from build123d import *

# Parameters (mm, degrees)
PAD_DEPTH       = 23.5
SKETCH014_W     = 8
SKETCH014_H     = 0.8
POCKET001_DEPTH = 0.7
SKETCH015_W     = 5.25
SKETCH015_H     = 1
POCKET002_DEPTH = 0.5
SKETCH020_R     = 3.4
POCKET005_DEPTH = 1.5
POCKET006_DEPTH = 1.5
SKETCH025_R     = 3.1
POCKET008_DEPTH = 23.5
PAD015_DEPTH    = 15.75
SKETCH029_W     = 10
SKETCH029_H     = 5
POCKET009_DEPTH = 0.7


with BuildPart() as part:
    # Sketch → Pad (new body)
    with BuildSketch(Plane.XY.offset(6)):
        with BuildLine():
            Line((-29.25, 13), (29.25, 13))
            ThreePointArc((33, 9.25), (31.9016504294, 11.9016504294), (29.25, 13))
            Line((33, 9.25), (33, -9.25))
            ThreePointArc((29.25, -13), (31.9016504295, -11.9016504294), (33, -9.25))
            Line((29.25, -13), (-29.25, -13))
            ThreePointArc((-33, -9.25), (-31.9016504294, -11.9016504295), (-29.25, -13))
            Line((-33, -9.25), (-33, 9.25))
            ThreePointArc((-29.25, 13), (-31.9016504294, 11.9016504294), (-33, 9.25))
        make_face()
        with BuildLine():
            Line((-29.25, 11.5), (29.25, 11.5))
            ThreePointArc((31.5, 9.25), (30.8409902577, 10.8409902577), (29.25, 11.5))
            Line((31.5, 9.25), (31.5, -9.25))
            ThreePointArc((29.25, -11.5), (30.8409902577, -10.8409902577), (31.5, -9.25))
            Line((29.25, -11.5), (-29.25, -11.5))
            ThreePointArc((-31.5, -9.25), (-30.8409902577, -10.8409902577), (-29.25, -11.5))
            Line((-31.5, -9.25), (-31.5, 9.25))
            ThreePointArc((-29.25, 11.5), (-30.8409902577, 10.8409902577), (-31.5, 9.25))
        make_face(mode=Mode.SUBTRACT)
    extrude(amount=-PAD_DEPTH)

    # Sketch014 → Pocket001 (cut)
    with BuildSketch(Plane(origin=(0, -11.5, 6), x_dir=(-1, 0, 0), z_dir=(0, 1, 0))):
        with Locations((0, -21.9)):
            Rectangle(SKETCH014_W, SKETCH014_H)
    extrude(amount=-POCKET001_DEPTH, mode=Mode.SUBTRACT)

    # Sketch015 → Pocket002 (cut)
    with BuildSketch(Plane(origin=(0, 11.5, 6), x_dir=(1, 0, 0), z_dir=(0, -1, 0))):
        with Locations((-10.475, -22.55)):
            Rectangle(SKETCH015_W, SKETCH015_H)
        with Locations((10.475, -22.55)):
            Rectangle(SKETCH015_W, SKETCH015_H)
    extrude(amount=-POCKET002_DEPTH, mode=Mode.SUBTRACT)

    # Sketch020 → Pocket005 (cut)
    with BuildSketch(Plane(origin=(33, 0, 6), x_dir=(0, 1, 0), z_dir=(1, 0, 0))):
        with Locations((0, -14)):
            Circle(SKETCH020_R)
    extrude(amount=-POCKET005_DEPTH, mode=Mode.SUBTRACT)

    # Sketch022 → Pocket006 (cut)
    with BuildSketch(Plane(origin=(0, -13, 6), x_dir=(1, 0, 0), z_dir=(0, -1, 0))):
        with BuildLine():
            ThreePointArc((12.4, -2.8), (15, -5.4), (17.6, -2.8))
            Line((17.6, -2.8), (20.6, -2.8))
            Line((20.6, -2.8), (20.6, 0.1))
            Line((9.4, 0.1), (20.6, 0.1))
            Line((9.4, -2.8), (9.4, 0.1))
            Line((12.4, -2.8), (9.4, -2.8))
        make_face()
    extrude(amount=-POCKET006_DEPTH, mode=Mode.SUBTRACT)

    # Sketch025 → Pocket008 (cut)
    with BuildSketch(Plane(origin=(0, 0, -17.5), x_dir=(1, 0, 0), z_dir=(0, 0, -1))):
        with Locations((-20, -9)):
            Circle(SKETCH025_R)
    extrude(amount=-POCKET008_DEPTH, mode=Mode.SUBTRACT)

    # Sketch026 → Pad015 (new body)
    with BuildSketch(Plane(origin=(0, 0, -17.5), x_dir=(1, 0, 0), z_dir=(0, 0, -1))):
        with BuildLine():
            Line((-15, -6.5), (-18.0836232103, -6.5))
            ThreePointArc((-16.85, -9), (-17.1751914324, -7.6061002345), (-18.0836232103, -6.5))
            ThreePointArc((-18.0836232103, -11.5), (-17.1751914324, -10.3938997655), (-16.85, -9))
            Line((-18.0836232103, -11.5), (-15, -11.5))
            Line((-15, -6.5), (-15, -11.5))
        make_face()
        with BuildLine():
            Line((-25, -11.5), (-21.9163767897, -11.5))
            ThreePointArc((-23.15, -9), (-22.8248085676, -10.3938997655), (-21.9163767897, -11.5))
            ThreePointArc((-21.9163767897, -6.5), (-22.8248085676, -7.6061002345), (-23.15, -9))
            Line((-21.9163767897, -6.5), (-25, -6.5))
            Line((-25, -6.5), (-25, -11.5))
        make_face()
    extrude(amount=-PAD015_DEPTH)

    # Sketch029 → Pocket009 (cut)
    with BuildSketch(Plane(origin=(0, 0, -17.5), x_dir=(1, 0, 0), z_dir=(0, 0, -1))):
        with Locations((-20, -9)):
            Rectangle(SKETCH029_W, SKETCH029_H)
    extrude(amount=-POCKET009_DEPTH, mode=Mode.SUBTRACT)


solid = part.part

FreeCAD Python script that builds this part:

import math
import FreeCAD as App
import Part
import Sketcher
from FreeCAD import Vector


def add_polygon(sketch, points):
    """Adds a closed chain of lines whose ends are joined by coincident constraints."""
    first, n = sketch.GeometryCount, len(points)
    for a, b in zip(points, points[1:] + points[:1]):
        sketch.addGeometry(Part.LineSegment(App.Vector(*a, 0), App.Vector(*b, 0)), False)
    for i in range(n):
        sketch.addConstraint(Sketcher.Constraint("Coincident", first + i, 2, first + (i + 1) % n, 1))

doc = App.newDocument("Part")
params = doc.addObject("Spreadsheet::Sheet", "Params")
for row, (alias, value) in enumerate([
    ("sketch1_radius", "3.75 mm"),
    ("sketch1_radius2", "2.25 mm"),
    ("sketch1_width", "58.5 mm"),
    ("sketch1_height", "18.5 mm"),
    ("pad1_length", "23.5 mm"),
    ("sketch2_width", "8 mm"),
    ("sketch2_height", "0.8 mm"),
    ("pocket1_length", "0.7 mm"),
    ("sketch3_height", "1 mm"),
    ("sketch3_width", "5.25 mm"),
    ("pocket2_length", "0.5 mm"),
    ("sketch4_diameter", "6.8 mm"),
    ("pocket3_length", "1.5 mm"),
    ("sketch5_radius", "2.6 mm"),
    ("sketch5_width", "3 mm"),
    ("sketch5_height", "2.9 mm"),
    ("pocket4_length", "1.5 mm"),
    ("sketch6_diameter", "6.2 mm"),
    ("pocket5_length", "23.5 mm"),
    ("sketch7_height", "5 mm"),
    ("sketch7_radius", "3.15 mm"),
    ("pad2_length", "15.75 mm"),
    ("sketch8_width", "10 mm"),
    ("sketch8_height", "5 mm"),
    ("pocket6_length", "0.7 mm"),
], start=1):
    params.set(f"A{row}", alias)
    params.set(f"B{row}", "=" + value)
    params.setAlias(f"B{row}", alias)

body = doc.addObject("PartDesign::Body", "Body")

# Sketch on XY plane
sketch1 = doc.addObject("Sketcher::SketchObject", "Sketch")
body.addObject(sketch1)
sketch1.AttachmentSupport = (doc.XY_Plane, [""])
sketch1.MapMode = "FlatFace"
sketch1.AttachmentOffset = App.Placement(Vector(0, 0, 6), App.Rotation())
sketch1.addGeometry(Part.LineSegment(Vector(29.2, 13, 0), Vector(-29.2, 13, 0)), False)
sketch1.addGeometry(Part.ArcOfCircle(Part.Circle(Vector(-29.2, 9.2, 0), Vector(0, 0, 1), 3.8), math.radians(90), math.radians(180)), False)
sketch1.addGeometry(Part.LineSegment(Vector(-33, 9.2, 0), Vector(-33, -9.2, 0)), False)
sketch1.addGeometry(Part.ArcOfCircle(Part.Circle(Vector(-29.2, -9.2, 0), Vector(0, 0, 1), 3.8), math.radians(180), math.radians(270)), False)
sketch1.addGeometry(Part.LineSegment(Vector(-29.2, -13, 0), Vector(29.2, -13, 0)), False)
sketch1.addGeometry(Part.ArcOfCircle(Part.Circle(Vector(29.2, -9.2, 0), Vector(0, 0, 1), 3.8), math.radians(-90), math.radians(0)), False)
sketch1.addGeometry(Part.LineSegment(Vector(33, -9.2, 0), Vector(33, 9.2, 0)), False)
sketch1.addGeometry(Part.ArcOfCircle(Part.Circle(Vector(29.2, 9.2, 0), Vector(0, 0, 1), 3.8), math.radians(0), math.radians(90)), False)
sketch1.addGeometry(Part.LineSegment(Vector(-29.2, 11.5, 0), Vector(29.2, 11.5, 0)), False)
sketch1.addGeometry(Part.ArcOfCircle(Part.Circle(Vector(29.2, 9.2, 0), Vector(0, 0, 1), 2.2), math.radians(0), math.radians(90)), False)
sketch1.addGeometry(Part.LineSegment(Vector(31.5, 9.2, 0), Vector(31.5, -9.2, 0)), False)
sketch1.addGeometry(Part.ArcOfCircle(Part.Circle(Vector(29.2, -9.2, 0), Vector(0, 0, 1), 2.2), math.radians(-90), math.radians(0)), False)
sketch1.addGeometry(Part.LineSegment(Vector(29.2, -11.5, 0), Vector(-29.2, -11.5, 0)), False)
sketch1.addGeometry(Part.ArcOfCircle(Part.Circle(Vector(-29.2, -9.2, 0), Vector(0, 0, 1), 2.2), math.radians(180), math.radians(270)), False)
sketch1.addGeometry(Part.LineSegment(Vector(-31.5, -9.2, 0), Vector(-31.5, 9.2, 0)), False)
sketch1.addGeometry(Part.ArcOfCircle(Part.Circle(Vector(-29.2, 9.2, 0), Vector(0, 0, 1), 2.2), math.radians(90), math.radians(180)), False)
sketch1.addConstraint(Sketcher.Constraint("Tangent", 0, 2, 1, 1))
sketch1.addConstraint(Sketcher.Constraint("Tangent", 1, 2, 2, 1))
sketch1.addConstraint(Sketcher.Constraint("Tangent", 2, 2, 3, 1))
sketch1.addConstraint(Sketcher.Constraint("Tangent", 3, 2, 4, 1))
sketch1.addConstraint(Sketcher.Constraint("Tangent", 4, 2, 5, 1))
sketch1.addConstraint(Sketcher.Constraint("Tangent", 5, 2, 6, 1))
sketch1.addConstraint(Sketcher.Constraint("Tangent", 6, 2, 7, 1))
sketch1.addConstraint(Sketcher.Constraint("Tangent", 7, 2, 0, 1))
sketch1.addConstraint(Sketcher.Constraint("Tangent", 8, 2, 9, 2))
sketch1.addConstraint(Sketcher.Constraint("Tangent", 9, 1, 10, 1))
sketch1.addConstraint(Sketcher.Constraint("Tangent", 10, 2, 11, 2))
sketch1.addConstraint(Sketcher.Constraint("Tangent", 11, 1, 12, 1))
sketch1.addConstraint(Sketcher.Constraint("Tangent", 12, 2, 13, 2))
sketch1.addConstraint(Sketcher.Constraint("Tangent", 13, 1, 14, 1))
sketch1.addConstraint(Sketcher.Constraint("Tangent", 14, 2, 15, 2))
sketch1.addConstraint(Sketcher.Constraint("Tangent", 15, 1, 8, 1))
sketch1.addConstraint(Sketcher.Constraint("Horizontal", 0))
sketch1.addConstraint(Sketcher.Constraint("Vertical", 2))
sketch1.addConstraint(Sketcher.Constraint("Horizontal", 4))
sketch1.addConstraint(Sketcher.Constraint("Vertical", 6))
sketch1.addConstraint(Sketcher.Constraint("Horizontal", 8))
sketch1.addConstraint(Sketcher.Constraint("Vertical", 10))
sketch1.addConstraint(Sketcher.Constraint("Horizontal", 12))
sketch1.addConstraint(Sketcher.Constraint("Vertical", 14))
sketch1.addConstraint(Sketcher.Constraint("Coincident", 9, 3, 7, 3))
sketch1.addConstraint(Sketcher.Constraint("Coincident", 11, 3, 5, 3))
sketch1.addConstraint(Sketcher.Constraint("Coincident", 13, 3, 3, 3))
sketch1.addConstraint(Sketcher.Constraint("Equal", 1, 3))
sketch1.addConstraint(Sketcher.Constraint("Equal", 3, 5))
sketch1.addConstraint(Sketcher.Constraint("Equal", 5, 7))
sketch1.addConstraint(Sketcher.Constraint("Equal", 13, 15))
sketch1.addConstraint(Sketcher.Constraint("Symmetric", 1, 3, 5, 3, -1, 1))
sketch1.addConstraint(Sketcher.Constraint("Radius", 1, 3.75))
sketch1.addConstraint(Sketcher.Constraint("Radius", 9, 2.25))
sketch1.addConstraint(Sketcher.Constraint("DistanceX", 0, 2, 0, 1, 58.5))
sketch1.addConstraint(Sketcher.Constraint("DistanceY", 2, 2, 2, 1, 18.5))
sketch1.setExpression("Constraints[32]", "Params.sketch1_radius")
sketch1.setExpression("Constraints[33]", "Params.sketch1_radius2")
sketch1.setExpression("Constraints[34]", "Params.sketch1_width")
sketch1.setExpression("Constraints[35]", "Params.sketch1_height")
pad1 = doc.addObject("PartDesign::Pad", "Pad")
body.addObject(pad1)
pad1.Profile = sketch1
pad1.setExpression("Length", "Params.pad1_length")
pad1.Reversed = True

# Sketch on XZ plane
sketch2 = doc.addObject("Sketcher::SketchObject", "Sketch001")
body.addObject(sketch2)
sketch2.AttachmentSupport = (doc.XZ_Plane, [""])
sketch2.MapMode = "FlatFace"
sketch2.AttachmentOffset = App.Placement(Vector(0, 0, 11.5), App.Rotation())
add_polygon(sketch2, [(4, -15.5), (4, -16.3), (-4, -16.3), (-4, -15.5)])  # lines 0-3
sketch2.addConstraint(Sketcher.Constraint("Vertical", 0))
sketch2.addConstraint(Sketcher.Constraint("Horizontal", 1))
sketch2.addConstraint(Sketcher.Constraint("Vertical", 2))
sketch2.addConstraint(Sketcher.Constraint("Horizontal", 3))
sketch2.addConstraint(Sketcher.Constraint("DistanceX", 1, 2, 1, 1, 8.0))
sketch2.addConstraint(Sketcher.Constraint("DistanceY", 0, 2, 0, 1, 0.8))
sketch2.addConstraint(Sketcher.Constraint("DistanceX", -1, 1, 0, 2, 4.0))
sketch2.addConstraint(Sketcher.Constraint("DistanceY", 0, 2, -1, 1, 16.3))
sketch2.setExpression("Constraints[8]", "Params.sketch2_width")
sketch2.setExpression("Constraints[9]", "Params.sketch2_height")
pocket1 = doc.addObject("PartDesign::Pocket", "Pocket")
body.addObject(pocket1)
pocket1.Profile = sketch2
pocket1.setExpression("Length", "Params.pocket1_length")
pocket1.Reversed = True

# Sketch on XZ plane
sketch3 = doc.addObject("Sketcher::SketchObject", "Sketch002")
body.addObject(sketch3)
sketch3.AttachmentSupport = (doc.XZ_Plane, [""])
sketch3.MapMode = "FlatFace"
sketch3.AttachmentOffset = App.Placement(Vector(0, 0, -11.5), App.Rotation())
add_polygon(sketch3, [(-13.1, -16.1), (-13.1, -17.1), (-7.8, -17.1), (-7.8, -16.1)])  # lines 0-3
add_polygon(sketch3, [(7.8, -16.1), (7.8, -17.1), (13.1, -17.1), (13.1, -16.1)])  # lines 4-7
sketch3.addConstraint(Sketcher.Constraint("Vertical", 0))
sketch3.addConstraint(Sketcher.Constraint("Horizontal", 1))
sketch3.addConstraint(Sketcher.Constraint("Vertical", 2))
sketch3.addConstraint(Sketcher.Constraint("Horizontal", 3))
sketch3.addConstraint(Sketcher.Constraint("Vertical", 4))
sketch3.addConstraint(Sketcher.Constraint("Horizontal", 5))
sketch3.addConstraint(Sketcher.Constraint("Vertical", 6))
sketch3.addConstraint(Sketcher.Constraint("Horizontal", 7))
sketch3.addConstraint(Sketcher.Constraint("Symmetric", 1, 2, 4, 2, -2))
sketch3.addConstraint(Sketcher.Constraint("Symmetric", 3, 2, 6, 2, -2))
sketch3.addConstraint(Sketcher.Constraint("DistanceY", 0, 2, 0, 1, 1.0))
sketch3.addConstraint(Sketcher.Constraint("DistanceX", 1, 1, 1, 2, 5.25))
sketch3.addConstraint(Sketcher.Constraint("DistanceX", 0, 2, -1, 1, 13.1))
sketch3.addConstraint(Sketcher.Constraint("DistanceY", 0, 2, -1, 1, 17.05))
sketch3.setExpression("Constraints[18]", "Params.sketch3_height")
sketch3.setExpression("Constraints[19]", "Params.sketch3_width")
pocket2 = doc.addObject("PartDesign::Pocket", "Pocket001")
body.addObject(pocket2)
pocket2.Profile = sketch3
pocket2.setExpression("Length", "Params.pocket2_length")

# Sketch on YZ plane
sketch4 = doc.addObject("Sketcher::SketchObject", "Sketch003")
body.addObject(sketch4)
sketch4.AttachmentSupport = (doc.YZ_Plane, [""])
sketch4.MapMode = "FlatFace"
sketch4.AttachmentOffset = App.Placement(Vector(0, 0, 33), App.Rotation())
sketch4.addGeometry(Part.Circle(Vector(0, -8, 0), Vector(0, 0, 1), 3.4), False)
sketch4.addConstraint(Sketcher.Constraint("PointOnObject", 0, 3, -2))
sketch4.addConstraint(Sketcher.Constraint("Diameter", 0, 6.8))
sketch4.addConstraint(Sketcher.Constraint("DistanceY", 0, 3, -1, 1, 8.0))
sketch4.setExpression("Constraints[1]", "Params.sketch4_diameter")
pocket3 = doc.addObject("PartDesign::Pocket", "Pocket002")
body.addObject(pocket3)
pocket3.Profile = sketch4
pocket3.setExpression("Length", "Params.pocket3_length")

# Sketch on XZ plane
sketch5 = doc.addObject("Sketcher::SketchObject", "Sketch004")
body.addObject(sketch5)
sketch5.AttachmentSupport = (doc.XZ_Plane, [""])
sketch5.MapMode = "FlatFace"
sketch5.AttachmentOffset = App.Placement(Vector(0, 0, 13), App.Rotation())
sketch5.addGeometry(Part.ArcOfCircle(Part.Circle(Vector(15, 3.2, 0), Vector(0, 0, 1), 2.6), math.radians(180), math.radians(360)), False)
sketch5.addGeometry(Part.LineSegment(Vector(17.6, 3.2, 0), Vector(20.6, 3.2, 0)), False)
sketch5.addGeometry(Part.LineSegment(Vector(20.6, 3.2, 0), Vector(20.6, 6.1, 0)), False)
sketch5.addGeometry(Part.LineSegment(Vector(20.6, 6.1, 0), Vector(9.4, 6.1, 0)), False)
sketch5.addGeometry(Part.LineSegment(Vector(9.4, 6.1, 0), Vector(9.4, 3.2, 0)), False)
sketch5.addGeometry(Part.LineSegment(Vector(9.4, 3.2, 0), Vector(12.4, 3.2, 0)), False)
sketch5.addConstraint(Sketcher.Constraint("Coincident", 0, 2, 1, 1))
sketch5.addConstraint(Sketcher.Constraint("Coincident", 1, 2, 2, 1))
sketch5.addConstraint(Sketcher.Constraint("Coincident", 2, 2, 3, 1))
sketch5.addConstraint(Sketcher.Constraint("Coincident", 3, 2, 4, 1))
sketch5.addConstraint(Sketcher.Constraint("Coincident", 4, 2, 5, 1))
sketch5.addConstraint(Sketcher.Constraint("Coincident", 5, 2, 0, 1))
sketch5.addConstraint(Sketcher.Constraint("Horizontal", 1))
sketch5.addConstraint(Sketcher.Constraint("Vertical", 2))
sketch5.addConstraint(Sketcher.Constraint("Horizontal", 3))
sketch5.addConstraint(Sketcher.Constraint("Vertical", 4))
sketch5.addConstraint(Sketcher.Constraint("Horizontal", 5))
sketch5.addConstraint(Sketcher.Constraint("Horizontal", 1, 2, 4, 2))
sketch5.addConstraint(Sketcher.Constraint("Equal", 1, 5))
sketch5.addConstraint(Sketcher.Constraint("Radius", 0, 2.6))
sketch5.addConstraint(Sketcher.Constraint("DistanceX", 1, 1, 1, 2, 3.0))
sketch5.addConstraint(Sketcher.Constraint("DistanceY", 2, 1, 2, 2, 2.9))
sketch5.addConstraint(Sketcher.Constraint("DistanceX", -1, 1, 0, 3, 15.0))
sketch5.addConstraint(Sketcher.Constraint("DistanceY", -1, 1, 0, 3, 3.2))
sketch5.addConstraint(Sketcher.Constraint("DistanceY", -1, 1, 0, 2, 3.2))
sketch5.setExpression("Constraints[13]", "Params.sketch5_radius")
sketch5.setExpression("Constraints[14]", "Params.sketch5_width")
sketch5.setExpression("Constraints[15]", "Params.sketch5_height")
pocket4 = doc.addObject("PartDesign::Pocket", "Pocket003")
body.addObject(pocket4)
pocket4.Profile = sketch5
pocket4.setExpression("Length", "Params.pocket4_length")

# Sketch on XY plane
sketch6 = doc.addObject("Sketcher::SketchObject", "Sketch005")
body.addObject(sketch6)
sketch6.AttachmentSupport = (doc.XY_Plane, [""])
sketch6.MapMode = "FlatFace"
sketch6.AttachmentOffset = App.Placement(Vector(0, 0, -17.5), App.Rotation())
sketch6.addGeometry(Part.Circle(Vector(-20, 9, 0), Vector(0, 0, 1), 3.1), False)
sketch6.addConstraint(Sketcher.Constraint("Diameter", 0, 6.2))
sketch6.addConstraint(Sketcher.Constraint("DistanceX", 0, 3, -1, 1, 20.0))
sketch6.addConstraint(Sketcher.Constraint("DistanceY", -1, 1, 0, 3, 9.0))
sketch6.setExpression("Constraints[0]", "Params.sketch6_diameter")
pocket5 = doc.addObject("PartDesign::Pocket", "Pocket004")
body.addObject(pocket5)
pocket5.Profile = sketch6
pocket5.setExpression("Length", "Params.pocket5_length")
pocket5.Reversed = True

# Sketch on XY plane
sketch7 = doc.addObject("Sketcher::SketchObject", "Sketch006")
body.addObject(sketch7)
sketch7.AttachmentSupport = (doc.XY_Plane, [""])
sketch7.MapMode = "FlatFace"
sketch7.AttachmentOffset = App.Placement(Vector(0, 0, -17.5), App.Rotation())
sketch7.addGeometry(Part.LineSegment(Vector(-15, 6.5, 0), Vector(-18.1, 6.5, 0)), False)
sketch7.addGeometry(Part.ArcOfCircle(Part.Circle(Vector(-20, 9, 0), Vector(0, 0, 1), 3.1), math.radians(-53), math.radians(0)), False)
sketch7.addGeometry(Part.ArcOfCircle(Part.Circle(Vector(-20, 9, 0), Vector(0, 0, 1), 3.1), math.radians(0), math.radians(53)), False)
sketch7.addGeometry(Part.LineSegment(Vector(-18.1, 11.5, 0), Vector(-15, 11.5, 0)), False)
sketch7.addGeometry(Part.LineSegment(Vector(-15, 11.5, 0), Vector(-15, 6.5, 0)), False)
sketch7.addGeometry(Part.LineSegment(Vector(-25, 11.5, 0), Vector(-21.9, 11.5, 0)), False)
sketch7.addGeometry(Part.ArcOfCircle(Part.Circle(Vector(-20, 9, 0), Vector(0, 0, 1), 3.1), math.radians(127), math.radians(180)), False)
sketch7.addGeometry(Part.ArcOfCircle(Part.Circle(Vector(-20, 9, 0), Vector(0, 0, 1), 3.1), math.radians(180), math.radians(233)), False)
sketch7.addGeometry(Part.LineSegment(Vector(-21.9, 6.5, 0), Vector(-25, 6.5, 0)), False)
sketch7.addGeometry(Part.LineSegment(Vector(-25, 6.5, 0), Vector(-25, 11.5, 0)), False)
sketch7.addConstraint(Sketcher.Constraint("Coincident", 0, 2, 1, 1))
sketch7.addConstraint(Sketcher.Constraint("Tangent", 1, 2, 2, 1))
sketch7.addConstraint(Sketcher.Constraint("Coincident", 2, 2, 3, 1))
sketch7.addConstraint(Sketcher.Constraint("Coincident", 3, 2, 4, 1))
sketch7.addConstraint(Sketcher.Constraint("Coincident", 4, 2, 0, 1))
sketch7.addConstraint(Sketcher.Constraint("Coincident", 5, 2, 6, 1))
sketch7.addConstraint(Sketcher.Constraint("Tangent", 6, 2, 7, 1))
sketch7.addConstraint(Sketcher.Constraint("Coincident", 7, 2, 8, 1))
sketch7.addConstraint(Sketcher.Constraint("Coincident", 8, 2, 9, 1))
sketch7.addConstraint(Sketcher.Constraint("Coincident", 9, 2, 5, 1))
sketch7.addConstraint(Sketcher.Constraint("Horizontal", 0))
sketch7.addConstraint(Sketcher.Constraint("Horizontal", 3))
sketch7.addConstraint(Sketcher.Constraint("Vertical", 4))
sketch7.addConstraint(Sketcher.Constraint("Horizontal", 5))
sketch7.addConstraint(Sketcher.Constraint("Horizontal", 8))
sketch7.addConstraint(Sketcher.Constraint("Vertical", 9))
sketch7.addConstraint(Sketcher.Constraint("Coincident", 6, 3, 1, 3))
sketch7.addConstraint(Sketcher.Constraint("Equal", 1, 2))
sketch7.addConstraint(Sketcher.Constraint("Equal", 2, 6))
sketch7.addConstraint(Sketcher.Constraint("Equal", 6, 7))
sketch7.addConstraint(Sketcher.Constraint("Horizontal", 7, 3, 1, 2))
sketch7.addConstraint(Sketcher.Constraint("Horizontal", 3, 2, 5, 2))
sketch7.addConstraint(Sketcher.Constraint("Horizontal", 1, 2, 6, 2))
sketch7.addConstraint(Sketcher.Constraint("Horizontal", 4, 2, 7, 2))
sketch7.addConstraint(Sketcher.Constraint("Vertical", 0, 2, 2, 2))
sketch7.addConstraint(Sketcher.Constraint("Equal", 3, 5))
sketch7.addConstraint(Sketcher.Constraint("DistanceY", 4, 2, 4, 1, 5.0))
sketch7.addConstraint(Sketcher.Constraint("Radius", 1, 3.15))
sketch7.addConstraint(Sketcher.Constraint("DistanceX", 1, 3, -1, 1, 20.0))
sketch7.addConstraint(Sketcher.Constraint("DistanceY", -1, 1, 1, 3, 9.0))
sketch7.addConstraint(Sketcher.Constraint("DistanceX", 3, 2, -1, 1, 15.0))
sketch7.setExpression("Constraints[26]", "Params.sketch7_height")
sketch7.setExpression("Constraints[27]", "Params.sketch7_radius")
pad2 = doc.addObject("PartDesign::Pad", "Pad001")
body.addObject(pad2)
pad2.Profile = sketch7
pad2.setExpression("Length", "Params.pad2_length")

# Sketch on XY plane
sketch8 = doc.addObject("Sketcher::SketchObject", "Sketch007")
body.addObject(sketch8)
sketch8.AttachmentSupport = (doc.XY_Plane, [""])
sketch8.MapMode = "FlatFace"
sketch8.AttachmentOffset = App.Placement(Vector(0, 0, -17.5), App.Rotation())
add_polygon(sketch8, [(-25, 6), (-25, 12), (-15, 12), (-15, 6)])  # lines 0-3
sketch8.addConstraint(Sketcher.Constraint("Vertical", 0))
sketch8.addConstraint(Sketcher.Constraint("Horizontal", 1))
sketch8.addConstraint(Sketcher.Constraint("Vertical", 2))
sketch8.addConstraint(Sketcher.Constraint("Horizontal", 3))
sketch8.addConstraint(Sketcher.Constraint("DistanceX", 1, 1, 1, 2, 10.0))
sketch8.addConstraint(Sketcher.Constraint("DistanceY", 0, 1, 0, 2, 5.0))
sketch8.addConstraint(Sketcher.Constraint("DistanceX", 0, 2, -1, 1, 25.0))
sketch8.addConstraint(Sketcher.Constraint("DistanceY", -1, 1, 0, 2, 11.5))
sketch8.setExpression("Constraints[8]", "Params.sketch8_width")
sketch8.setExpression("Constraints[9]", "Params.sketch8_height")
pocket6 = doc.addObject("PartDesign::Pocket", "Pocket005")
body.addObject(pocket6)
pocket6.Profile = sketch8
pocket6.setExpression("Length", "Params.pocket6_length")
pocket6.Reversed = True

doc.recompute()
